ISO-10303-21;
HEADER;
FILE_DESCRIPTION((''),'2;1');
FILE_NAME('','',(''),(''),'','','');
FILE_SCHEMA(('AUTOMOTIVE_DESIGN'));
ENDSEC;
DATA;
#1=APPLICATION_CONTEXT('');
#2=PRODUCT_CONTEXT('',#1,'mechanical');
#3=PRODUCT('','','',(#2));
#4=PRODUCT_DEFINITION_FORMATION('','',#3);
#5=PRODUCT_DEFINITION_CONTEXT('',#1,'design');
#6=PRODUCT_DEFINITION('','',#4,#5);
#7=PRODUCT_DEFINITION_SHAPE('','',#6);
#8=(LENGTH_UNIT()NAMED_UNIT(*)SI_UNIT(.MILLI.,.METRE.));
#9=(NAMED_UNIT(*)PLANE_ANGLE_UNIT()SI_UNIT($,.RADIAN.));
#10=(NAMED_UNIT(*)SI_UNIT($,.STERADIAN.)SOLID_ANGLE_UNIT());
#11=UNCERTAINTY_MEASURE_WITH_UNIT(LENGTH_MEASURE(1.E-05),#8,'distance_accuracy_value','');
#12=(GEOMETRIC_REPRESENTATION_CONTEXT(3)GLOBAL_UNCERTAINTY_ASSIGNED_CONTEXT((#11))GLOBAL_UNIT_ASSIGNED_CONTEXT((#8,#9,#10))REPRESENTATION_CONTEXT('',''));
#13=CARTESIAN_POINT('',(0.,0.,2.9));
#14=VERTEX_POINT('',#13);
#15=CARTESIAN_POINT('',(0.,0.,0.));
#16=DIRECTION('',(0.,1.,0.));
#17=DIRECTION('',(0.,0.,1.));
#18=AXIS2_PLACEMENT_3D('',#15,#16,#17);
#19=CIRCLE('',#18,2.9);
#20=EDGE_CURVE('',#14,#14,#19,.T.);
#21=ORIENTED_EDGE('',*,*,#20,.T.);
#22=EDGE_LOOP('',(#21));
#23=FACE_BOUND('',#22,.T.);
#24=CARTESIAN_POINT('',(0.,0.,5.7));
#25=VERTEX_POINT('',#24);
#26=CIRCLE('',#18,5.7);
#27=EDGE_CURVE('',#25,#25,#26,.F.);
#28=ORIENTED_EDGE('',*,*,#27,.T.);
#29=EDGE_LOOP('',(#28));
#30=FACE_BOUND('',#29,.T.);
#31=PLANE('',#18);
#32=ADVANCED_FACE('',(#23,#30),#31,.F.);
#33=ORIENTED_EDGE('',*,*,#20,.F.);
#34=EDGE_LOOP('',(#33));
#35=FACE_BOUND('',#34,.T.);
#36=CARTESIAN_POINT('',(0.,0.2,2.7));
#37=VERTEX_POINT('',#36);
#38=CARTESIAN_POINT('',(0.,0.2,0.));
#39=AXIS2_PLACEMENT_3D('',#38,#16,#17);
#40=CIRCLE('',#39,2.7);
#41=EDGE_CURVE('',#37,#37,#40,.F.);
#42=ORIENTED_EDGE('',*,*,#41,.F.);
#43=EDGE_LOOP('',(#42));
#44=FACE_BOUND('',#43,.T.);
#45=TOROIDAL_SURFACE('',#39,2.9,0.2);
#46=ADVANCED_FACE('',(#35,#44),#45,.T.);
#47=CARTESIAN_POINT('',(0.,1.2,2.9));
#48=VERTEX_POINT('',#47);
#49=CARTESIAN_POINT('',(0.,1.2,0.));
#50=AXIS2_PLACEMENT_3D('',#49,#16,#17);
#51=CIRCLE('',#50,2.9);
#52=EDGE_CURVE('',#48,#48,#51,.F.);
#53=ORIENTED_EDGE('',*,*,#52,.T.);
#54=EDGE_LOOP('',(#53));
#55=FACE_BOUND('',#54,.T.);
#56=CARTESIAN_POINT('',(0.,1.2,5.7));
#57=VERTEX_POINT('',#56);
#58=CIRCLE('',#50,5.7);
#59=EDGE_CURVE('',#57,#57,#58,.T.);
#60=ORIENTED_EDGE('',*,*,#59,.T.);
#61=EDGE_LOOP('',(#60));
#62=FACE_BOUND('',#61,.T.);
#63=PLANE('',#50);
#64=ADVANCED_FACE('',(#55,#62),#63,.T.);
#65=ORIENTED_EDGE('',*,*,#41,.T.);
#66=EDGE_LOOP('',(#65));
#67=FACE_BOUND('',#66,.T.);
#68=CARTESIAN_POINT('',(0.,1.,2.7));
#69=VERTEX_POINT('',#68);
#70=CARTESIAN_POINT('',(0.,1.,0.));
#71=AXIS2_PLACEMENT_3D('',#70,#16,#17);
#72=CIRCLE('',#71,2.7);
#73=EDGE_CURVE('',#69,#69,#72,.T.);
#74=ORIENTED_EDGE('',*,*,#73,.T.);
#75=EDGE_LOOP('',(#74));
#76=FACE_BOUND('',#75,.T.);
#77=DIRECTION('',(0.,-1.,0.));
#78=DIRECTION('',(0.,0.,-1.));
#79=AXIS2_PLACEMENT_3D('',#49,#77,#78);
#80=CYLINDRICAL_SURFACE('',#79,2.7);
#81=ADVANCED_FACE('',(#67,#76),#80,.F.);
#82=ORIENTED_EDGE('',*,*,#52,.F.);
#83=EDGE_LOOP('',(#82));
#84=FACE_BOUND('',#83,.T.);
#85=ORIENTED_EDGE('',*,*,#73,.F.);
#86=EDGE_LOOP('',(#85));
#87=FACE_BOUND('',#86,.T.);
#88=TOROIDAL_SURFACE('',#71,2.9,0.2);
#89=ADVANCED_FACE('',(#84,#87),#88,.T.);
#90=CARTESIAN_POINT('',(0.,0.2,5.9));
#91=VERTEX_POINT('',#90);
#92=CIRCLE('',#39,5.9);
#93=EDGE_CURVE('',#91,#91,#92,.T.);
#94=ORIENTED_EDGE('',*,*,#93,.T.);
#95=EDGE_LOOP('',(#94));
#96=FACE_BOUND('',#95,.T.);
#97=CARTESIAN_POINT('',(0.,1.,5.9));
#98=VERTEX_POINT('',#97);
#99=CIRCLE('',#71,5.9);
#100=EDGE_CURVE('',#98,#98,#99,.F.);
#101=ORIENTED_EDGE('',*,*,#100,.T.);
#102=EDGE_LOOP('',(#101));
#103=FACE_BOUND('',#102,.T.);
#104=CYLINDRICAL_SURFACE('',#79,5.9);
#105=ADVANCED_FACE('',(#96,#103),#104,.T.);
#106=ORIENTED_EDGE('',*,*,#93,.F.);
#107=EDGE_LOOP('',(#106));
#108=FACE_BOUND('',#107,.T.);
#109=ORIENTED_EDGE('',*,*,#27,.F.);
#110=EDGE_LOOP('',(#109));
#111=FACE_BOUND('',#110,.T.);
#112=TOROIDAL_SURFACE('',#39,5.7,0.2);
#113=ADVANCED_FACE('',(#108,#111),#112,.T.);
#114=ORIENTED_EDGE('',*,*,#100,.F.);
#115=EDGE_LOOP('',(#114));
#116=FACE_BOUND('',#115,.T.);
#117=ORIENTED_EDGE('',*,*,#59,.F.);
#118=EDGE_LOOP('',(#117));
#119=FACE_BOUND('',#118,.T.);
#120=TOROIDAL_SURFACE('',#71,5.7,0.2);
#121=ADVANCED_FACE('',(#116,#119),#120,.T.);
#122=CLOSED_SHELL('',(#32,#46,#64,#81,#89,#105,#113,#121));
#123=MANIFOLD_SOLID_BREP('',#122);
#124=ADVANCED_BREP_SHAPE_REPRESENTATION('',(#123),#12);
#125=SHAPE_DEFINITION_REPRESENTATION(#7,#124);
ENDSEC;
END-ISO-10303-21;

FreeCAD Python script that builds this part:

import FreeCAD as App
import Part
import Sketcher
Q = App.Units.Quantity


def edges_at(feature, points):
    """Names of the edges that pass closest to the given points."""
    edges = feature.Shape.Edges
    near = lambda p: min(range(len(edges)), key=lambda i: edges[i].distToShape(Part.Vertex(*p))[0])
    return sorted({f"Edge{near(p) + 1}" for p in points})

doc = App.newDocument("Part")
body = doc.addObject("PartDesign::Body", "Body")

sketch1 = doc.addObject("Sketcher::SketchObject", "Sketch")
body.addObject(sketch1)
sketch1.AttachmentSupport = (doc.XZ_Plane, [""])
sketch1.MapMode = "FlatFace"
sketch1.addGeometry([
    Part.Circle(App.Vector(0, 0, 0), App.Vector(0, 0, 1), 5.9),
    Part.Circle(App.Vector(0, 0, 0), App.Vector(0, 0, 1), 2.7),
], False)
sketch1.addConstraint([
    Sketcher.Constraint("Coincident", 0, 3, -1, 1),
    Sketcher.Constraint("Coincident", 1, 3, -1, 1),
    Sketcher.Constraint("Diameter", 0, Q("11.8 mm")),
    Sketcher.Constraint("Diameter", 1, Q("5.4 mm")),
])
pad1 = doc.addObject("PartDesign::Pad", "Pad")
body.addObject(pad1)
pad1.Profile = sketch1
pad1.Length = 1.2
pad1.Reversed = True
doc.recompute()

fillet = doc.addObject("PartDesign::Fillet", "Fillet")
body.addObject(fillet)
fillet.Base = (pad1, edges_at(pad1, [
    (0, 0, -5.9),
    (0, 1.2, -5.9),
    (0, 0, -2.7),
    (0, 1.2, -2.7),
]))
fillet.Radius = 0.2

doc.recompute()
